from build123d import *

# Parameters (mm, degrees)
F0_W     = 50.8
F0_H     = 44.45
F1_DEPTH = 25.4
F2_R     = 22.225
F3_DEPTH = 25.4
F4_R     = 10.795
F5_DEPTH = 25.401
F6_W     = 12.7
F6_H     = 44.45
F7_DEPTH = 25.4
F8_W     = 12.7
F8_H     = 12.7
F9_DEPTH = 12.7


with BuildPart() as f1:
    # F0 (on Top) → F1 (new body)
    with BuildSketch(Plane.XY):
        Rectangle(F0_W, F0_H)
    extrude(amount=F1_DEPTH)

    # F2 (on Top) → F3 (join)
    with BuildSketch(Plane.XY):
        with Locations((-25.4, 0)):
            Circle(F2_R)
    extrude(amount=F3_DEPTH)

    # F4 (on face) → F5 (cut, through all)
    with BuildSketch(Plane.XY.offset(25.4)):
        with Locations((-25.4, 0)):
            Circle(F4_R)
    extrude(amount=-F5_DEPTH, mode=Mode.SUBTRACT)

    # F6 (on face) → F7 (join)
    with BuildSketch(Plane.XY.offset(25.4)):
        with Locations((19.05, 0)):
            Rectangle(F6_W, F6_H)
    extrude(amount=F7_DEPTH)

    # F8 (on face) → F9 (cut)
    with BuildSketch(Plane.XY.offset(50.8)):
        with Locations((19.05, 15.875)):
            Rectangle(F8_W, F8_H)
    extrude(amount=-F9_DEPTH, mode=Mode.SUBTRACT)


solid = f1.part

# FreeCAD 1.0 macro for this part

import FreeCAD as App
import Part
import Sketcher
from FreeCAD import Vector
Q = App.Units.Quantity


def add_polygon(sketch, points):
    """Adds a closed chain of lines whose ends are joined by coincident constraints."""
    first, n = sketch.GeometryCount, len(points)
    for a, b in zip(points, points[1:] + points[:1]):
        sketch.addGeometry(Part.LineSegment(App.Vector(*a, 0), App.Vector(*b, 0)), False)
    for i in range(n):
        sketch.addConstraint(Sketcher.Constraint("Coincident", first + i, 2, first + (i + 1) % n, 1))

doc = App.newDocument("Part")
params = doc.addObject("Spreadsheet::Sheet", "Params")
for row, (alias, value) in enumerate([
    ("sketch1_width", "2 in"),
    ("sketch1_height", "1.75 in"),
    ("pad1_length", "1 in"),
    ("sketch2_diameter", "1.75 in"),
    ("pad2_length", "1 in"),
    ("sketch3_diameter", "0.85 in"),
    ("sketch4_width", "0.5 in"),
    ("sketch4_height", "1.75 in"),
    ("pad3_length", "1 in"),
    ("sketch5_width", "0.5 in"),
    ("pocket2_length", "0.5 in"),
], start=1):
    params.set(f"A{row}", alias)
    params.set(f"B{row}", "=" + value)
    params.setAlias(f"B{row}", alias)

body = doc.addObject("PartDesign::Body", "Body")

# Sketch on XY plane
sketch1 = body.newObject("Sketcher::SketchObject", "Sketch")
sketch1.AttachmentSupport = (doc.getObject("XY_Plane"), [""])
sketch1.MapMode = "FlatFace"
add_polygon(sketch1, [(-25, 22), (-25, -22), (25, -22), (25, 22)])  # lines 0-3
sketch1.addConstraint([
    Sketcher.Constraint("Vertical", 0),
    Sketcher.Constraint("Horizontal", 1),
    Sketcher.Constraint("Vertical", 2),
    Sketcher.Constraint("Horizontal", 3),
    Sketcher.Constraint("Symmetric", 0, 2, 2, 2, -1, 1),
    Sketcher.Constraint("DistanceX", 1, 1, 1, 2, Q("2 in")),
    Sketcher.Constraint("DistanceY", 0, 2, 0, 1, Q("1.75 in")),
])
sketch1.setExpression("Constraints[9]", "Params.sketch1_width")
sketch1.setExpression("Constraints[10]", "Params.sketch1_height")
pad1 = body.newObject("PartDesign::Pad", "Pad")
pad1.Profile = sketch1
pad1.setExpression("Length", "Params.pad1_length")

# Sketch on XY plane
sketch2 = body.newObject("Sketcher::SketchObject", "Sketch001")
sketch2.AttachmentSupport = (doc.getObject("XY_Plane"), [""])
sketch2.MapMode = "FlatFace"
sketch2.addGeometry(Part.Circle(Vector(-25, 0, 0), Vector(0, 0, 1), 22), False)
sketch2.addConstraint([
    Sketcher.Constraint("PointOnObject", 0, 3, -1),
    Sketcher.Constraint("Diameter", 0, Q("1.75 in")),
    Sketcher.Constraint("DistanceX", 0, 3, -1, 1, Q("1 in")),
])
sketch2.setExpression("Constraints[1]", "Params.sketch2_diameter")
pad2 = body.newObject("PartDesign::Pad", "Pad001")
pad2.Profile = sketch2
pad2.setExpression("Length", "Params.pad2_length")

# Sketch on XY plane
sketch3 = body.newObject("Sketcher::SketchObject", "Sketch002")
sketch3.AttachmentSupport = (doc.getObject("XY_Plane"), [""])
sketch3.MapMode = "FlatFace"
sketch3.AttachmentOffset = App.Placement(Vector(0, 0, 1 * 25.4), App.Rotation())
sketch3.addGeometry(Part.Circle(Vector(-25, 0, 0), Vector(0, 0, 1), 11), False)
sketch3.addConstraint([
    Sketcher.Constraint("PointOnObject", 0, 3, -1),
    Sketcher.Constraint("Diameter", 0, Q("0.85 in")),
    Sketcher.Constraint("DistanceX", 0, 3, -1, 1, Q("1 in")),
])
sketch3.setExpression("Constraints[1]", "Params.sketch3_diameter")
pocket1 = body.newObject("PartDesign::Pocket", "Pocket")
pocket1.Profile = sketch3
pocket1.Type = "ThroughAll"

# Sketch on XY plane
sketch4 = body.newObject("Sketcher::SketchObject", "Sketch003")
sketch4.AttachmentSupport = (doc.getObject("XY_Plane"), [""])
sketch4.MapMode = "FlatFace"
sketch4.AttachmentOffset = App.Placement(Vector(0, 0, 1 * 25.4), App.Rotation())
add_polygon(sketch4, [(13, 22), (13, -22), (25, -22), (25, 22)])  # lines 0-3
sketch4.addConstraint([
    Sketcher.Constraint("Vertical", 0),
    Sketcher.Constraint("Horizontal", 1),
    Sketcher.Constraint("Vertical", 2),
    Sketcher.Constraint("Horizontal", 3),
    Sketcher.Constraint("DistanceX", 1, 1, 1, 2, Q("0.5 in")),
    Sketcher.Constraint("DistanceX", -1, 1, 1, 2, Q("1 in")),
    Sketcher.Constraint("DistanceY", 0, 2, 0, 1, Q("1.75 in")),
    Sketcher.Constraint("DistanceY", 0, 2, -1, 1, Q("0.875 in")),
])
sketch4.setExpression("Constraints[8]", "Params.sketch4_width")
sketch4.setExpression("Constraints[10]", "Params.sketch4_height")
pad3 = body.newObject("PartDesign::Pad", "Pad002")
pad3.Profile = sketch4
pad3.setExpression("Length", "Params.pad3_length")

# Sketch on XY plane
sketch5 = body.newObject("Sketcher::SketchObject", "Sketch004")
sketch5.AttachmentSupport = (doc.getObject("XY_Plane"), [""])
sketch5.MapMode = "FlatFace"
sketch5.AttachmentOffset = App.Placement(Vector(0, 0, 2 * 25.4), App.Rotation())
add_polygon(sketch5, [(13, 22), (13, 10), (25, 10), (25, 22)])  # lines 0-3
sketch5.addConstraint([
    Sketcher.Constraint("Vertical", 0),
    Sketcher.Constraint("Horizontal", 1),
    Sketcher.Constraint("Vertical", 2),
    Sketcher.Constraint("Horizontal", 3),
    Sketcher.Constraint("Equal", 3, 0),
    Sketcher.Constraint("DistanceX", 1, 1, 1, 2, Q("0.5 in")),
    Sketcher.Constraint("DistanceX", -1, 1, 1, 2, Q("1 in")),
    Sketcher.Constraint("DistanceY", -1, 1, 0, 2, Q("0.375 in")),
])
sketch5.setExpression("Constraints[9]", "Params.sketch5_width")
pocket2 = body.newObject("PartDesign::Pocket", "Pocket001")
pocket2.Profile = sketch5
pocket2.setExpression("Length", "Params.pocket2_length")

doc.recompute()
